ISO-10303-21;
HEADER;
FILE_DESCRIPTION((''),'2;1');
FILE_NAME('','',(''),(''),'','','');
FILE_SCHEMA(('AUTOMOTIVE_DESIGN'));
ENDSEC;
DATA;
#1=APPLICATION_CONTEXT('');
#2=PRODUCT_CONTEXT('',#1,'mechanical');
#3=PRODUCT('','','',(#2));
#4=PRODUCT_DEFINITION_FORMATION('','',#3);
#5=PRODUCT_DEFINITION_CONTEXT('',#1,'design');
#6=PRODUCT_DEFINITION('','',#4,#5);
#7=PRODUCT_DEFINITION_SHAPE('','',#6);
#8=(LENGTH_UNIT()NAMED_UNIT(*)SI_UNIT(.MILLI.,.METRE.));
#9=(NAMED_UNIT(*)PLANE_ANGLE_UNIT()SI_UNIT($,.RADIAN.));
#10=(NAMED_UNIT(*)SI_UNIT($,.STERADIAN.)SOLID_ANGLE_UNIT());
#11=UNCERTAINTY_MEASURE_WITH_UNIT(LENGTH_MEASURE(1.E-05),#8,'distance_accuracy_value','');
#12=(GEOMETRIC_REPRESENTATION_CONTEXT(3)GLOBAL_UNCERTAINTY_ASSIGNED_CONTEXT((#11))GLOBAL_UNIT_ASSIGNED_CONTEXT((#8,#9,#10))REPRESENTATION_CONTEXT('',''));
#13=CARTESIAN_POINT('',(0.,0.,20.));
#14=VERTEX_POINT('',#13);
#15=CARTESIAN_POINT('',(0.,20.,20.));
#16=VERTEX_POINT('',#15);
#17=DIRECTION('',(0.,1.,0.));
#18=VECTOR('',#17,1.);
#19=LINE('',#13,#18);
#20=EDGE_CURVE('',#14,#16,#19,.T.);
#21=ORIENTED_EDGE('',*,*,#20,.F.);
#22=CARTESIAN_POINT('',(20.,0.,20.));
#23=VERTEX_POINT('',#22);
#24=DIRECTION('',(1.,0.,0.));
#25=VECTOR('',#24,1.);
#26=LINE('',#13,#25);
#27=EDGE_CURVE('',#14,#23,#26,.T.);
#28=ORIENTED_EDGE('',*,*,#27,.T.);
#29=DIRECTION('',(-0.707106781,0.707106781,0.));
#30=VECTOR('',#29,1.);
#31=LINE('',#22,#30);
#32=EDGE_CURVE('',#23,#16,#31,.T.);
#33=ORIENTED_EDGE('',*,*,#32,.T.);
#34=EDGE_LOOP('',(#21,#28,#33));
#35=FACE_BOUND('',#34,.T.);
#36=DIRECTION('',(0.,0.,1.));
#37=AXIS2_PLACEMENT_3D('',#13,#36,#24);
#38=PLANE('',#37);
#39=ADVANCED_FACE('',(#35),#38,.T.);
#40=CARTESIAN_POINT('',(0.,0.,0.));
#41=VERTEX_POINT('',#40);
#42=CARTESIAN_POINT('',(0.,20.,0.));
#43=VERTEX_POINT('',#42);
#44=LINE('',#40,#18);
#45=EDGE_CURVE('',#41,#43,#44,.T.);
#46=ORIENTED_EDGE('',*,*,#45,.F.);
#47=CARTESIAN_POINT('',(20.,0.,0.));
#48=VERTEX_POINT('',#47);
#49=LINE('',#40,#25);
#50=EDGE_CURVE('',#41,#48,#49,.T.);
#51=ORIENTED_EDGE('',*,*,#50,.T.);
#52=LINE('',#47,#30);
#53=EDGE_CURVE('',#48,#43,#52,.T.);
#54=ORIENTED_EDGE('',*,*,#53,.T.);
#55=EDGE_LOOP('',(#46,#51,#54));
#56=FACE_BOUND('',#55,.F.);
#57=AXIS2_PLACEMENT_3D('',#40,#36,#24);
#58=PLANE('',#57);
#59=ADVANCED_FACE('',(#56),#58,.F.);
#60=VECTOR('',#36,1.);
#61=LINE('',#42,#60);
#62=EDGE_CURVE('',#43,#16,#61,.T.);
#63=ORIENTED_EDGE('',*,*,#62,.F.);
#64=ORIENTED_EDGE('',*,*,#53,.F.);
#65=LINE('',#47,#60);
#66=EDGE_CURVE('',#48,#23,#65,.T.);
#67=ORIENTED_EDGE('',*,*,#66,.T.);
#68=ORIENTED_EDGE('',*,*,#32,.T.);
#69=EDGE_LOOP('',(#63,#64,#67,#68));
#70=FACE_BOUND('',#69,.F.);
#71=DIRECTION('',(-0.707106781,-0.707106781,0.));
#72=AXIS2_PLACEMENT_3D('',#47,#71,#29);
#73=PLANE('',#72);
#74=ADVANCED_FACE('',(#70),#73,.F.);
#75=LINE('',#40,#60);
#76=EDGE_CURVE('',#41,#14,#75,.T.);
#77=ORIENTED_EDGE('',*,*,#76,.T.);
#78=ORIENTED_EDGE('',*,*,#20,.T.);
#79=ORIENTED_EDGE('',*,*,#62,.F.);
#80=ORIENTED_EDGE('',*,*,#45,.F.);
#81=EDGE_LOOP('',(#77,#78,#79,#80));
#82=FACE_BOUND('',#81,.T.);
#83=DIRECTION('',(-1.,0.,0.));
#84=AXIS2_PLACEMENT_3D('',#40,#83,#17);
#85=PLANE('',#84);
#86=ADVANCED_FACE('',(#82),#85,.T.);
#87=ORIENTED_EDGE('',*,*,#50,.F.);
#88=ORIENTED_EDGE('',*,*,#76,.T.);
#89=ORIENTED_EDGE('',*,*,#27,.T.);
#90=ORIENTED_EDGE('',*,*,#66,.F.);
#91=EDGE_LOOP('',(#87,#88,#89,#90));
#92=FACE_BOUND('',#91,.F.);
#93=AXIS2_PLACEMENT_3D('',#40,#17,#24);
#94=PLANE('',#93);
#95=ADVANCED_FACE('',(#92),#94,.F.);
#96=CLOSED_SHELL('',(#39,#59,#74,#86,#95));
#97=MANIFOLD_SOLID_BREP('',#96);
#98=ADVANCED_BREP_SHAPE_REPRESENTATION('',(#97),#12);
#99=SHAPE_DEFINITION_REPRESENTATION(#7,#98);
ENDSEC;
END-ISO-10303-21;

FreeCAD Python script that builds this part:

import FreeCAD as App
import Part
import Sketcher

doc = App.newDocument("Part")
params = doc.addObject("Spreadsheet::Sheet", "Params")
for row, (alias, value) in enumerate([
    ("sketch1_width", "20 mm"),
    ("pad1_length", "20 mm"),
], start=1):
    params.set(f"A{row}", alias)
    params.set(f"B{row}", "=" + value)
    params.setAlias(f"B{row}", alias)

body = doc.addObject("PartDesign::Body", "Body")

# Sketch on XY plane
sketch1 = body.newObject("Sketcher::SketchObject", "Sketch")
sketch1.AttachmentSupport = (doc.getObject("XY_Plane"), [""])
sketch1.MapMode = "FlatFace"
sketch1.addGeometry([
    Part.LineSegment(App.Vector(0, 20, 0), App.Vector(0, 0, 0)),
    Part.LineSegment(App.Vector(0, 0, 0), App.Vector(20, 0, 0)),
    Part.LineSegment(App.Vector(20, 0, 0), App.Vector(0, 20, 0)),
], False)
sketch1.addConstraint([
    Sketcher.Constraint("Coincident", 0, 2, 1, 1),
    Sketcher.Constraint("Coincident", 1, 2, 2, 1),
    Sketcher.Constraint("Coincident", 2, 2, 0, 1),
    Sketcher.Constraint("Vertical", 0),
    Sketcher.Constraint("Horizontal", 1),
    Sketcher.Constraint("Coincident", 0, 2, -1, 1),
    Sketcher.Constraint("Equal", 1, 0),
    Sketcher.Constraint("DistanceX", 1, 1, 1, 2, 20.0),
])
sketch1.setExpression("Constraints[7]", "Params.sketch1_width")
pad1 = body.newObject("PartDesign::Pad", "Pad")
pad1.Profile = sketch1
pad1.setExpression("Length", "Params.pad1_length")

doc.recompute()
